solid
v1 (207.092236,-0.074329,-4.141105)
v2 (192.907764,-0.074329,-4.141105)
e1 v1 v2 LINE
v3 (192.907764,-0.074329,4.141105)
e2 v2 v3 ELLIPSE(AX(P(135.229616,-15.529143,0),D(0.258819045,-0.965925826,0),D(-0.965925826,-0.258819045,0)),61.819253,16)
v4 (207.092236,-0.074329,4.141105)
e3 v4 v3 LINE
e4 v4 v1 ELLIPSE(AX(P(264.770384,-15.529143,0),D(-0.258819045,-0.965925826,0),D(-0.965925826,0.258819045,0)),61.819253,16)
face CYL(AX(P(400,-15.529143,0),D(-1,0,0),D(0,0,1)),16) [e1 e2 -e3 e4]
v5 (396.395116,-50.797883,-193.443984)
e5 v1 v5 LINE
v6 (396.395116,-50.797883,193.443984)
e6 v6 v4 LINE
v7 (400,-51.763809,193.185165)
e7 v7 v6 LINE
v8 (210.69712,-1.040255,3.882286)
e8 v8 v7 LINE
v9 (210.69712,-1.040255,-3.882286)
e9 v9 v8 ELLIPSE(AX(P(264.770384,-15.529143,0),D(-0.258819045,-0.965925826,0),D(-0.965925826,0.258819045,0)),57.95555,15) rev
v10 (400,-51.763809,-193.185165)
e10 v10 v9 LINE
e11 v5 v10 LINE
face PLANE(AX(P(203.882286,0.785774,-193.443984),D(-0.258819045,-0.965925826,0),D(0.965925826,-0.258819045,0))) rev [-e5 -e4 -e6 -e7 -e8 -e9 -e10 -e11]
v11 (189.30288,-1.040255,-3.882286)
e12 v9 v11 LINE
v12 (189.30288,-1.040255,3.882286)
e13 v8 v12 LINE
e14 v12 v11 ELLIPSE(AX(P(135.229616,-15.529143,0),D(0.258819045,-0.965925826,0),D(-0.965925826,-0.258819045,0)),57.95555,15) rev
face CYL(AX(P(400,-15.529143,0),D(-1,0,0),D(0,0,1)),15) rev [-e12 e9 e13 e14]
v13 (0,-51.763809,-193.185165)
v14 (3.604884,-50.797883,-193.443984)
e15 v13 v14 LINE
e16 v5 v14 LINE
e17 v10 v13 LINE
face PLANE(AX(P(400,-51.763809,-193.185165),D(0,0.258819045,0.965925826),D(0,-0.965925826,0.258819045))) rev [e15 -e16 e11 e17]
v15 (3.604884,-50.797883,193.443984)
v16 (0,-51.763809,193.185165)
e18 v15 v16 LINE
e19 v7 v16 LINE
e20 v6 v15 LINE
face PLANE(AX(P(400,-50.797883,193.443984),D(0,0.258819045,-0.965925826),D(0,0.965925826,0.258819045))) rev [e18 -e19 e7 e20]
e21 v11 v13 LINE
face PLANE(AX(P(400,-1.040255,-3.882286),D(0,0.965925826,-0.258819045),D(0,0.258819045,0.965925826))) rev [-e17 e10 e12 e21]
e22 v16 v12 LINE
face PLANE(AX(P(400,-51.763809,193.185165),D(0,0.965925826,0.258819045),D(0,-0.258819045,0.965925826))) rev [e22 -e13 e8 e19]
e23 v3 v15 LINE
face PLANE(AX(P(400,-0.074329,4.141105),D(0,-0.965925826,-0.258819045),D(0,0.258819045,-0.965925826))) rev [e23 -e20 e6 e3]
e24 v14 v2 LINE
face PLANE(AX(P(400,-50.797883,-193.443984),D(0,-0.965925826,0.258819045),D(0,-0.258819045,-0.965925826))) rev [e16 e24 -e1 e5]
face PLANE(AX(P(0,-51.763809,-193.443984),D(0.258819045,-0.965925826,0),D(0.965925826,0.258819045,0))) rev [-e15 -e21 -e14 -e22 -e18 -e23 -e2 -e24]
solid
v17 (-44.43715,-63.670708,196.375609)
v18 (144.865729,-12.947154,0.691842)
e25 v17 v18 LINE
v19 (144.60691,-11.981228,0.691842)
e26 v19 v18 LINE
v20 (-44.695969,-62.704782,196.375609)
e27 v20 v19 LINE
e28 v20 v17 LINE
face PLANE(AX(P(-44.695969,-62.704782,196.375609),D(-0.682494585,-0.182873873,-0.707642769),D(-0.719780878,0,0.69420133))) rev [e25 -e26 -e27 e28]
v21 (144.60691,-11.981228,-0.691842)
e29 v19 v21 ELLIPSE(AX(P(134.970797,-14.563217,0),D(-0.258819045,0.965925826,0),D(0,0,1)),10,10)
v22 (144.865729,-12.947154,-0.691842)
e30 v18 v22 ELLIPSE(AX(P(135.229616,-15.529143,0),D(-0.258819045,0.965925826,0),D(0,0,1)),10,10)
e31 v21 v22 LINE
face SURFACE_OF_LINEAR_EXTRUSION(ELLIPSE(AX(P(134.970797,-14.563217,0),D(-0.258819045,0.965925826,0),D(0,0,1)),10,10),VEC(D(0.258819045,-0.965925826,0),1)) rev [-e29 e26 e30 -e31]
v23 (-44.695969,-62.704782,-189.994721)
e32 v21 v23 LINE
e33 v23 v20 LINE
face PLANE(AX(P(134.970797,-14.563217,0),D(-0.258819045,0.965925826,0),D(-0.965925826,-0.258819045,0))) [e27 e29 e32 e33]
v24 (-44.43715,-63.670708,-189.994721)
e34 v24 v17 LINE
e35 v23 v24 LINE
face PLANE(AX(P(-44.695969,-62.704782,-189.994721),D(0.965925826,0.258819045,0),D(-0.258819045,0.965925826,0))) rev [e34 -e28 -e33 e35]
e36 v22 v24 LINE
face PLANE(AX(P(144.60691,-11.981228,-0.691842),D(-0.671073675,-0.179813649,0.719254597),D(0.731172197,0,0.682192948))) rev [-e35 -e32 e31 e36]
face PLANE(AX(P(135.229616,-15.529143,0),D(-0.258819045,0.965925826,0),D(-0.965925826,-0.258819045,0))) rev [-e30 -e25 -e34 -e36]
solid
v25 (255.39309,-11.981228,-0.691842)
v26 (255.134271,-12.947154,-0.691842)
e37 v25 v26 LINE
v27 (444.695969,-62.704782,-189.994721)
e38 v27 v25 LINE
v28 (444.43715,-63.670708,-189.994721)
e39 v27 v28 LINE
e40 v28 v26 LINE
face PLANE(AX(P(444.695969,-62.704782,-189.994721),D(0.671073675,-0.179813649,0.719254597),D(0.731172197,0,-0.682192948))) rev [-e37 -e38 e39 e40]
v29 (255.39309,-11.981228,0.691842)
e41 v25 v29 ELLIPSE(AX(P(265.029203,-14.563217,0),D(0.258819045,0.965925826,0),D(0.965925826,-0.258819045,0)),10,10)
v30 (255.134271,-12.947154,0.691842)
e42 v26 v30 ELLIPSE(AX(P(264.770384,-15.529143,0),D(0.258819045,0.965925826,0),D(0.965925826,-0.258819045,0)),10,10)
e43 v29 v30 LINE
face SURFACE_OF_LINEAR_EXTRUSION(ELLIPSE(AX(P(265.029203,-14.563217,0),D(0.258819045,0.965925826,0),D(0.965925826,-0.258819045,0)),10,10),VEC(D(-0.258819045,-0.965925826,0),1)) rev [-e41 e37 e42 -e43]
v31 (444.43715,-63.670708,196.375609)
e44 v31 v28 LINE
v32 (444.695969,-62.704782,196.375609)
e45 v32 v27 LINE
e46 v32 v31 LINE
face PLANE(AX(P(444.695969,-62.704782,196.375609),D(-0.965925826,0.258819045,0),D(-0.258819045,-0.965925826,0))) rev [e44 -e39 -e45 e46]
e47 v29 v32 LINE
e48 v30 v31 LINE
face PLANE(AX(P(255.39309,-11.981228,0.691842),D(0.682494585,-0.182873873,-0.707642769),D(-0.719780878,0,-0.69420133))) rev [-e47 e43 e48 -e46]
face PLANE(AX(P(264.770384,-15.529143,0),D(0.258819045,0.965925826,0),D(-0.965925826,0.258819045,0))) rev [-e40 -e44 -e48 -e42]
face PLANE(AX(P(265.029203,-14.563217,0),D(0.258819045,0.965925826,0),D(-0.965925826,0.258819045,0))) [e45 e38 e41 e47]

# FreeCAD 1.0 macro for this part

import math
import FreeCAD as App
import Part
import Sketcher
from FreeCAD import Vector
Q = App.Units.Quantity

doc = App.newDocument("Part")
body = doc.addObject("PartDesign::Body", "Body")

sketch1 = doc.addObject("Sketcher::SketchObject", "Sketch")
body.addObject(sketch1)
sketch1.AttachmentSupport = (doc.YZ_Plane, [""])
sketch1.MapMode = "FlatFace"
sketch1.addGeometry([
    Part.LineSegment(Vector(-51.8, 193.2, 0), Vector(-1, 3.9, 0)),
    Part.ArcOfCircle(Part.Circle(Vector(-15.5, 0, 0), Vector(0, 0, 1), 15), math.radians(-15), math.radians(15)),
    Part.LineSegment(Vector(-1, -3.9, 0), Vector(-51.8, -193.2, 0)),
    Part.LineSegment(Vector(-51.8, -193.2, 0), Vector(-50.8, -193.4, 0)),
    Part.LineSegment(Vector(-50.8, -193.4, 0), Vector(-0.1, -4.1, 0)),
    Part.ArcOfCircle(Part.Circle(Vector(-15.5, 0, 0), Vector(0, 0, 1), 16), math.radians(-15), math.radians(15)),
    Part.LineSegment(Vector(-0.1, 4.1, 0), Vector(-50.8, 193.4, 0)),
    Part.LineSegment(Vector(-50.8, 193.4, 0), Vector(-51.8, 193.2, 0)),
], False)
sketch1.addConstraint([
    Sketcher.Constraint("Tangent", 0, 2, 1, 2),
    Sketcher.Constraint("Tangent", 1, 1, 2, 1),
    Sketcher.Constraint("Coincident", 2, 2, 3, 1),
    Sketcher.Constraint("Coincident", 3, 2, 4, 1),
    Sketcher.Constraint("Tangent", 4, 2, 5, 1),
    Sketcher.Constraint("Tangent", 5, 2, 6, 1),
    Sketcher.Constraint("Coincident", 6, 2, 7, 1),
    Sketcher.Constraint("Coincident", 7, 2, 0, 1),
    Sketcher.Constraint("Coincident", 5, 3, 1, 3),
    Sketcher.Constraint("Symmetric", 0, 2, 1, 1, -1),
    Sketcher.Constraint("Symmetric", 3, 2, 6, 2, -1),
    Sketcher.Constraint("Perpendicular", 2, 3),
    Sketcher.Constraint("Perpendicular", 3, 4),
    Sketcher.Constraint("Perpendicular", 6, 7),
    Sketcher.Constraint("Radius", 1, Q("15 mm")),
    Sketcher.Constraint("Radius", 5, Q("16 mm")),
    Sketcher.Constraint("Angle", 0, Q("-75 deg")),
    Sketcher.Constraint("DistanceY", 3, 2, 1, 1, Q("189.561699 mm")),
    Sketcher.Constraint("DistanceX", 2, 2, -1, 1, Q("51.763809 mm")),
])
pad1 = doc.addObject("PartDesign::Pad", "Pad")
body.addObject(pad1)
pad1.Profile = sketch1
pad1.Length = 400

sketch2 = doc.addObject("Sketcher::SketchObject", "Sketch001")
body.addObject(sketch2)
sketch2.AttachmentSupport = (doc.XY_Plane, [""])
sketch2.MapMode = "FlatFace"
sketch2.addGeometry([
    Part.LineSegment(Vector(0, -52, 0), Vector(196, 1, 0)),
    Part.ArcOfCircle(Part.Circle(Vector(200, -14, 0), Vector(0, 0, 1), 15), math.radians(75), math.radians(105)),
    Part.LineSegment(Vector(204, 1, 0), Vector(400, -52, 0)),
    Part.LineSegment(Vector(400, -52, 0), Vector(400, 8, 0)),
    Part.LineSegment(Vector(400, 8, 0), Vector(0, 8, 0)),
    Part.LineSegment(Vector(0, 8, 0), Vector(0, -52, 0)),
], False)
sketch2.addConstraint([
    Sketcher.Constraint("Tangent", 0, 2, 1, 2),
    Sketcher.Constraint("Tangent", 1, 1, 2, 1),
    Sketcher.Constraint("Coincident", 2, 2, 3, 1),
    Sketcher.Constraint("Coincident", 3, 2, 4, 1),
    Sketcher.Constraint("Coincident", 4, 2, 5, 1),
    Sketcher.Constraint("Coincident", 5, 2, 0, 1),
    Sketcher.Constraint("Vertical", 3),
    Sketcher.Constraint("Horizontal", 4),
    Sketcher.Constraint("Vertical", 5),
    Sketcher.Constraint("PointOnObject", 4, 2, -2),
    Sketcher.Constraint("Horizontal", 0, 2, 1, 1),
    Sketcher.Constraint("Horizontal", 2, 2, 5, 2),
    Sketcher.Constraint("Radius", 1, Q("15 mm")),
    Sketcher.Constraint("DistanceX", 4, 2, 4, 1, Q("400 mm")),
    Sketcher.Constraint("DistanceY", 3, 1, 3, 2, Q("60 mm")),
    Sketcher.Constraint("Angle", 0, Q("15 deg")),
    Sketcher.Constraint("DistanceY", 2, 2, -1, 1, Q("51.763809 mm")),
])
pocket1 = doc.addObject("PartDesign::Pocket", "Pocket")
body.addObject(pocket1)
pocket1.Profile = sketch2
pocket1.Type = "ThroughAll"
pocket1.Midplane = True
body2 = doc.addObject("PartDesign::Body", "Body001")

sketch3 = doc.addObject("Sketcher::SketchObject", "Sketch002")
body2.addObject(sketch3)
sketch3.Placement = App.Placement(Vector(13.853967, 51.703709, 0), App.Rotation(Vector(-0.965925826, 0.258819045, 0), Vector(0, 0, 0.999999999), Vector(0.258819045, 0.965925826, 0), "ZXY"))
sketch3.addGeometry([
    Part.LineSegment(Vector(-445.772513, 196.375609, 0), Vector(-445.772513, -189.994721, 0)),
    Part.LineSegment(Vector(-445.772513, -189.994721, 0), Vector(-249.791751, -0.691842, 0)),
    Part.BSplineCurve([Vector(-249.791751, -0.691842, 0), Vector(-249.743771, 0, 0), Vector(-249.791751, 0.691842, 0)], [3, 3], [3.072353159, 3.210832148], False, 2, [1, 0.997603904, 1], False),
    Part.LineSegment(Vector(-249.791751, 0.691842, 0), Vector(-445.772513, 196.375609, 0)),
], False)
sketch3.addConstraint([
    Sketcher.Constraint("Block", 2),
    Sketcher.Constraint("Coincident", 0, 2, 1, 1),
    Sketcher.Constraint("Coincident", 1, 2, 2, 1),
    Sketcher.Constraint("Coincident", 2, 2, 3, 1),
    Sketcher.Constraint("Coincident", 3, 2, 0, 1),
    Sketcher.Constraint("Vertical", 0),
    Sketcher.Constraint("DistanceY", 0, 2, 0, 1, Q("386.37033 mm")),
    Sketcher.Constraint("DistanceY", 0, 2, -1, 1, Q("189.994721 mm")),
    Sketcher.Constraint("DistanceX", 0, 2, 1, 2, Q("195.980762 mm")),
])
pad2 = doc.addObject("PartDesign::Pad", "Pad001")
body2.addObject(pad2)
pad2.Profile = sketch3
pad2.Length = 1
body3 = doc.addObject("PartDesign::Body", "Body002")

sketch4 = doc.addObject("Sketcher::SketchObject", "Sketch003")
body3.addObject(sketch4)
sketch4.Placement = App.Placement(Vector(12.940952, -48.296291, 0), App.Rotation(Vector(-0.965925826, -0.258819045, 0), Vector(0, 0, 0.999999999), Vector(-0.258819045, 0.965925826, 0), "ZXY"))
sketch4.addGeometry([
    Part.LineSegment(Vector(-136.578579, -0.691842, 0), Vector(59.402183, -189.994721, 0)),
    Part.LineSegment(Vector(59.402183, -189.994721, 0), Vector(59.402183, 196.375609, 0)),
    Part.LineSegment(Vector(59.402183, 196.375609, 0), Vector(-136.578579, 0.691842, 0)),
    Part.BSplineCurve([Vector(-136.578579, 0.691842, 0), Vector(-136.626559, 0, 0), Vector(-136.578579, -0.691842, 0)], [3, 3], [1.501556832, 1.640035821], False, 2, [1, 0.997603904, 1], False),
], False)
sketch4.addConstraint([
    Sketcher.Constraint("Block", 3),
    Sketcher.Constraint("Coincident", 0, 2, 1, 1),
    Sketcher.Constraint("Coincident", 1, 2, 2, 1),
    Sketcher.Constraint("Coincident", 2, 2, 3, 1),
    Sketcher.Constraint("Coincident", 3, 2, 0, 1),
    Sketcher.Constraint("Vertical", 1),
    Sketcher.Constraint("DistanceY", 1, 1, 1, 2, Q("386.37033 mm")),
    Sketcher.Constraint("DistanceY", 0, 2, -1, 1, Q("189.994721 mm")),
    Sketcher.Constraint("DistanceX", 2, 2, 0, 2, Q("195.980762 mm")),
])
pad3 = doc.addObject("PartDesign::Pad", "Pad002")
body3.addObject(pad3)
pad3.Profile = sketch4
pad3.Length = 1

doc.recompute()
